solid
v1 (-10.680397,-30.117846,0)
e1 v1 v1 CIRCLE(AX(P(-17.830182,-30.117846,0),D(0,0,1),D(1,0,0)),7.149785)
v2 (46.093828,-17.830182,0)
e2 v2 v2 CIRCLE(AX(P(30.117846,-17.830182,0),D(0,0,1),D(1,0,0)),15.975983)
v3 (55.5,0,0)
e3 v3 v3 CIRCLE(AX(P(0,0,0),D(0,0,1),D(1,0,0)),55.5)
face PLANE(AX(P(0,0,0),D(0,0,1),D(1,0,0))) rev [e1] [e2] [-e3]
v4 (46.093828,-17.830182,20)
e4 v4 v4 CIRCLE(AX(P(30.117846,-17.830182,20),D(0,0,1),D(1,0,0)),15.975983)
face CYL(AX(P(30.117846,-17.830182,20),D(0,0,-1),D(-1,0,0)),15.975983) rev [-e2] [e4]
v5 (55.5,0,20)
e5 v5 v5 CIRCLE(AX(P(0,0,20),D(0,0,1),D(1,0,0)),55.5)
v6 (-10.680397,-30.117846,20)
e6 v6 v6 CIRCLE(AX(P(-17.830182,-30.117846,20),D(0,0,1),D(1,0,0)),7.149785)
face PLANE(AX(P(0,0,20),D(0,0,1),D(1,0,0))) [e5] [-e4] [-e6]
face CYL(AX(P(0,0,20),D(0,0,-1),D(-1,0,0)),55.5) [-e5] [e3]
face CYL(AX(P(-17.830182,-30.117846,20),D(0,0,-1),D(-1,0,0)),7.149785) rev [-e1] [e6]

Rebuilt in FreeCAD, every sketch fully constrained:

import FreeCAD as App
import Part
import Sketcher

V = App.Vector
Q = App.Units.Quantity

doc = App.newDocument("Part")
body = doc.addObject("PartDesign::Body", "Body")

# Sketch on XY plane
sketch1 = body.newObject("Sketcher::SketchObject", "Sketch")
sketch1.AttachmentSupport = (doc.getObject("XY_Plane"), [""])
sketch1.MapMode = "FlatFace"
sketch1.addGeometry(Part.Circle(V(0, 0, 0), V(0, 0, 1), 56), False)
sketch1.addGeometry(Part.Circle(V(-18, -30, 0), V(0, 0, 1), 7), False)
sketch1.addGeometry(Part.Circle(V(30, -18, 0), V(0, 0, 1), 16), False)
sketch1.addConstraint(Sketcher.Constraint("Coincident", 0, 3, -1, 1))
sketch1.addConstraint(Sketcher.Constraint("Diameter", 0, Q("111 mm")))
sketch1.addConstraint(Sketcher.Constraint("Diameter", 1, Q("14.29957 mm")))
sketch1.addConstraint(Sketcher.Constraint("Diameter", 2, Q("31.951965 mm")))
sketch1.addConstraint(Sketcher.Constraint("DistanceX", 1, 3, -1, 1, Q("17.830182 mm")))
sketch1.addConstraint(Sketcher.Constraint("DistanceY", 2, 3, -1, 1, Q("17.830182 mm")))
sketch1.addConstraint(Sketcher.Constraint("DistanceY", 1, 3, -1, 1, Q("30.117846 mm")))
sketch1.addConstraint(Sketcher.Constraint("DistanceX", -1, 1, 2, 3, Q("30.117846 mm")))
pad1 = body.newObject("PartDesign::Pad", "Pad")
pad1.Profile = sketch1
pad1.Length = 20

doc.recompute()
